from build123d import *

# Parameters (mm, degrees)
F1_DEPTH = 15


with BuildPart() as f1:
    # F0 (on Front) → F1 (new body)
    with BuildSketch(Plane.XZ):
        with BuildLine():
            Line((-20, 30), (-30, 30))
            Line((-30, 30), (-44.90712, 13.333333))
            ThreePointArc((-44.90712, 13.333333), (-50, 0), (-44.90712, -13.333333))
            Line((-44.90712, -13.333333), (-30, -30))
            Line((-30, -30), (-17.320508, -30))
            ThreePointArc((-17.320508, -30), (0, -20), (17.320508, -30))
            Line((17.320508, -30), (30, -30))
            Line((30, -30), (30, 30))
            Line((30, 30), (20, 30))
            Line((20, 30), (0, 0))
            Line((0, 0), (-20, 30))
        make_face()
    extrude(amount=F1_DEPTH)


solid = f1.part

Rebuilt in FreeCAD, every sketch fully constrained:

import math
import FreeCAD as App
import Part
import Sketcher

doc = App.newDocument("Part")
body = doc.addObject("PartDesign::Body", "Body")

sketch1 = body.newObject("Sketcher::SketchObject", "Sketch")
sketch1.AttachmentSupport = (doc.getObject("XZ_Plane"), [""])
sketch1.MapMode = "FlatFace"
sketch1.addGeometry([
    Part.LineSegment(App.Vector(-20, 30, 0), App.Vector(-30, 30, 0)),
    Part.LineSegment(App.Vector(-30, 30, 0), App.Vector(-44.90712, 13.333333, 0)),
    Part.ArcOfCircle(Part.Circle(App.Vector(-30, 0, 0), App.Vector(0, 0, 1), 20), math.radians(138.189685), math.radians(221.810315)),
    Part.LineSegment(App.Vector(-44.90712, -13.333333, 0), App.Vector(-30, -30, 0)),
    Part.LineSegment(App.Vector(-30, -30, 0), App.Vector(-17.320508, -30, 0)),
    Part.ArcOfCircle(Part.Circle(App.Vector(0, -40, 0), App.Vector(0, 0, 1), 20), math.radians(30), math.radians(150)),
    Part.LineSegment(App.Vector(17.320508, -30, 0), App.Vector(30, -30, 0)),
    Part.LineSegment(App.Vector(30, -30, 0), App.Vector(30, 30, 0)),
    Part.LineSegment(App.Vector(30, 30, 0), App.Vector(20, 30, 0)),
    Part.LineSegment(App.Vector(20, 30, 0), App.Vector(0, 0, 0)),
    Part.LineSegment(App.Vector(0, 0, 0), App.Vector(-20, 30, 0)),
], False)
sketch1.addConstraint([
    Sketcher.Constraint("Coincident", 0, 2, 1, 1),
    Sketcher.Constraint("Tangent", 1, 2, 2, 1),
    Sketcher.Constraint("Tangent", 2, 2, 3, 1),
    Sketcher.Constraint("Coincident", 3, 2, 4, 1),
    Sketcher.Constraint("Coincident", 4, 2, 5, 2),
    Sketcher.Constraint("Coincident", 5, 1, 6, 1),
    Sketcher.Constraint("Coincident", 6, 2, 7, 1),
    Sketcher.Constraint("Coincident", 7, 2, 8, 1),
    Sketcher.Constraint("Coincident", 8, 2, 9, 1),
    Sketcher.Constraint("Coincident", 9, 2, 10, 1),
    Sketcher.Constraint("Coincident", 10, 2, 0, 1),
    Sketcher.Constraint("Horizontal", 0),
    Sketcher.Constraint("Horizontal", 4),
    Sketcher.Constraint("Horizontal", 6),
    Sketcher.Constraint("Vertical", 7),
    Sketcher.Constraint("Horizontal", 8),
    Sketcher.Constraint("Coincident", 9, 2, -1, 1),
    Sketcher.Constraint("Equal", 2, 5),
    Sketcher.Constraint("Symmetric", 0, 2, 6, 2, -1, 1),
    Sketcher.Constraint("Symmetric", 3, 2, 7, 2, -1, 1),
    Sketcher.Constraint("Symmetric", 4, 2, 5, 1, -2),
    Sketcher.Constraint("PointOnObject", 2, 3, -1),
    Sketcher.Constraint("Vertical", 2, 3, 0, 2),
    Sketcher.Constraint("Equal", 0, 8),
    Sketcher.Constraint("Radius", 2, 20.0),
    Sketcher.Constraint("DistanceX", 0, 2, 0, 1, 10.0),
    Sketcher.Constraint("DistanceY", 7, 1, 7, 2, 60.0),
    Sketcher.Constraint("DistanceX", 2, 3, -1, 1, 30.0),
    Sketcher.Constraint("DistanceY", 5, 3, -1, 1, 40.0),
])
pad1 = body.newObject("PartDesign::Pad", "Pad")
pad1.Profile = sketch1
pad1.Length = 15

doc.recompute()
